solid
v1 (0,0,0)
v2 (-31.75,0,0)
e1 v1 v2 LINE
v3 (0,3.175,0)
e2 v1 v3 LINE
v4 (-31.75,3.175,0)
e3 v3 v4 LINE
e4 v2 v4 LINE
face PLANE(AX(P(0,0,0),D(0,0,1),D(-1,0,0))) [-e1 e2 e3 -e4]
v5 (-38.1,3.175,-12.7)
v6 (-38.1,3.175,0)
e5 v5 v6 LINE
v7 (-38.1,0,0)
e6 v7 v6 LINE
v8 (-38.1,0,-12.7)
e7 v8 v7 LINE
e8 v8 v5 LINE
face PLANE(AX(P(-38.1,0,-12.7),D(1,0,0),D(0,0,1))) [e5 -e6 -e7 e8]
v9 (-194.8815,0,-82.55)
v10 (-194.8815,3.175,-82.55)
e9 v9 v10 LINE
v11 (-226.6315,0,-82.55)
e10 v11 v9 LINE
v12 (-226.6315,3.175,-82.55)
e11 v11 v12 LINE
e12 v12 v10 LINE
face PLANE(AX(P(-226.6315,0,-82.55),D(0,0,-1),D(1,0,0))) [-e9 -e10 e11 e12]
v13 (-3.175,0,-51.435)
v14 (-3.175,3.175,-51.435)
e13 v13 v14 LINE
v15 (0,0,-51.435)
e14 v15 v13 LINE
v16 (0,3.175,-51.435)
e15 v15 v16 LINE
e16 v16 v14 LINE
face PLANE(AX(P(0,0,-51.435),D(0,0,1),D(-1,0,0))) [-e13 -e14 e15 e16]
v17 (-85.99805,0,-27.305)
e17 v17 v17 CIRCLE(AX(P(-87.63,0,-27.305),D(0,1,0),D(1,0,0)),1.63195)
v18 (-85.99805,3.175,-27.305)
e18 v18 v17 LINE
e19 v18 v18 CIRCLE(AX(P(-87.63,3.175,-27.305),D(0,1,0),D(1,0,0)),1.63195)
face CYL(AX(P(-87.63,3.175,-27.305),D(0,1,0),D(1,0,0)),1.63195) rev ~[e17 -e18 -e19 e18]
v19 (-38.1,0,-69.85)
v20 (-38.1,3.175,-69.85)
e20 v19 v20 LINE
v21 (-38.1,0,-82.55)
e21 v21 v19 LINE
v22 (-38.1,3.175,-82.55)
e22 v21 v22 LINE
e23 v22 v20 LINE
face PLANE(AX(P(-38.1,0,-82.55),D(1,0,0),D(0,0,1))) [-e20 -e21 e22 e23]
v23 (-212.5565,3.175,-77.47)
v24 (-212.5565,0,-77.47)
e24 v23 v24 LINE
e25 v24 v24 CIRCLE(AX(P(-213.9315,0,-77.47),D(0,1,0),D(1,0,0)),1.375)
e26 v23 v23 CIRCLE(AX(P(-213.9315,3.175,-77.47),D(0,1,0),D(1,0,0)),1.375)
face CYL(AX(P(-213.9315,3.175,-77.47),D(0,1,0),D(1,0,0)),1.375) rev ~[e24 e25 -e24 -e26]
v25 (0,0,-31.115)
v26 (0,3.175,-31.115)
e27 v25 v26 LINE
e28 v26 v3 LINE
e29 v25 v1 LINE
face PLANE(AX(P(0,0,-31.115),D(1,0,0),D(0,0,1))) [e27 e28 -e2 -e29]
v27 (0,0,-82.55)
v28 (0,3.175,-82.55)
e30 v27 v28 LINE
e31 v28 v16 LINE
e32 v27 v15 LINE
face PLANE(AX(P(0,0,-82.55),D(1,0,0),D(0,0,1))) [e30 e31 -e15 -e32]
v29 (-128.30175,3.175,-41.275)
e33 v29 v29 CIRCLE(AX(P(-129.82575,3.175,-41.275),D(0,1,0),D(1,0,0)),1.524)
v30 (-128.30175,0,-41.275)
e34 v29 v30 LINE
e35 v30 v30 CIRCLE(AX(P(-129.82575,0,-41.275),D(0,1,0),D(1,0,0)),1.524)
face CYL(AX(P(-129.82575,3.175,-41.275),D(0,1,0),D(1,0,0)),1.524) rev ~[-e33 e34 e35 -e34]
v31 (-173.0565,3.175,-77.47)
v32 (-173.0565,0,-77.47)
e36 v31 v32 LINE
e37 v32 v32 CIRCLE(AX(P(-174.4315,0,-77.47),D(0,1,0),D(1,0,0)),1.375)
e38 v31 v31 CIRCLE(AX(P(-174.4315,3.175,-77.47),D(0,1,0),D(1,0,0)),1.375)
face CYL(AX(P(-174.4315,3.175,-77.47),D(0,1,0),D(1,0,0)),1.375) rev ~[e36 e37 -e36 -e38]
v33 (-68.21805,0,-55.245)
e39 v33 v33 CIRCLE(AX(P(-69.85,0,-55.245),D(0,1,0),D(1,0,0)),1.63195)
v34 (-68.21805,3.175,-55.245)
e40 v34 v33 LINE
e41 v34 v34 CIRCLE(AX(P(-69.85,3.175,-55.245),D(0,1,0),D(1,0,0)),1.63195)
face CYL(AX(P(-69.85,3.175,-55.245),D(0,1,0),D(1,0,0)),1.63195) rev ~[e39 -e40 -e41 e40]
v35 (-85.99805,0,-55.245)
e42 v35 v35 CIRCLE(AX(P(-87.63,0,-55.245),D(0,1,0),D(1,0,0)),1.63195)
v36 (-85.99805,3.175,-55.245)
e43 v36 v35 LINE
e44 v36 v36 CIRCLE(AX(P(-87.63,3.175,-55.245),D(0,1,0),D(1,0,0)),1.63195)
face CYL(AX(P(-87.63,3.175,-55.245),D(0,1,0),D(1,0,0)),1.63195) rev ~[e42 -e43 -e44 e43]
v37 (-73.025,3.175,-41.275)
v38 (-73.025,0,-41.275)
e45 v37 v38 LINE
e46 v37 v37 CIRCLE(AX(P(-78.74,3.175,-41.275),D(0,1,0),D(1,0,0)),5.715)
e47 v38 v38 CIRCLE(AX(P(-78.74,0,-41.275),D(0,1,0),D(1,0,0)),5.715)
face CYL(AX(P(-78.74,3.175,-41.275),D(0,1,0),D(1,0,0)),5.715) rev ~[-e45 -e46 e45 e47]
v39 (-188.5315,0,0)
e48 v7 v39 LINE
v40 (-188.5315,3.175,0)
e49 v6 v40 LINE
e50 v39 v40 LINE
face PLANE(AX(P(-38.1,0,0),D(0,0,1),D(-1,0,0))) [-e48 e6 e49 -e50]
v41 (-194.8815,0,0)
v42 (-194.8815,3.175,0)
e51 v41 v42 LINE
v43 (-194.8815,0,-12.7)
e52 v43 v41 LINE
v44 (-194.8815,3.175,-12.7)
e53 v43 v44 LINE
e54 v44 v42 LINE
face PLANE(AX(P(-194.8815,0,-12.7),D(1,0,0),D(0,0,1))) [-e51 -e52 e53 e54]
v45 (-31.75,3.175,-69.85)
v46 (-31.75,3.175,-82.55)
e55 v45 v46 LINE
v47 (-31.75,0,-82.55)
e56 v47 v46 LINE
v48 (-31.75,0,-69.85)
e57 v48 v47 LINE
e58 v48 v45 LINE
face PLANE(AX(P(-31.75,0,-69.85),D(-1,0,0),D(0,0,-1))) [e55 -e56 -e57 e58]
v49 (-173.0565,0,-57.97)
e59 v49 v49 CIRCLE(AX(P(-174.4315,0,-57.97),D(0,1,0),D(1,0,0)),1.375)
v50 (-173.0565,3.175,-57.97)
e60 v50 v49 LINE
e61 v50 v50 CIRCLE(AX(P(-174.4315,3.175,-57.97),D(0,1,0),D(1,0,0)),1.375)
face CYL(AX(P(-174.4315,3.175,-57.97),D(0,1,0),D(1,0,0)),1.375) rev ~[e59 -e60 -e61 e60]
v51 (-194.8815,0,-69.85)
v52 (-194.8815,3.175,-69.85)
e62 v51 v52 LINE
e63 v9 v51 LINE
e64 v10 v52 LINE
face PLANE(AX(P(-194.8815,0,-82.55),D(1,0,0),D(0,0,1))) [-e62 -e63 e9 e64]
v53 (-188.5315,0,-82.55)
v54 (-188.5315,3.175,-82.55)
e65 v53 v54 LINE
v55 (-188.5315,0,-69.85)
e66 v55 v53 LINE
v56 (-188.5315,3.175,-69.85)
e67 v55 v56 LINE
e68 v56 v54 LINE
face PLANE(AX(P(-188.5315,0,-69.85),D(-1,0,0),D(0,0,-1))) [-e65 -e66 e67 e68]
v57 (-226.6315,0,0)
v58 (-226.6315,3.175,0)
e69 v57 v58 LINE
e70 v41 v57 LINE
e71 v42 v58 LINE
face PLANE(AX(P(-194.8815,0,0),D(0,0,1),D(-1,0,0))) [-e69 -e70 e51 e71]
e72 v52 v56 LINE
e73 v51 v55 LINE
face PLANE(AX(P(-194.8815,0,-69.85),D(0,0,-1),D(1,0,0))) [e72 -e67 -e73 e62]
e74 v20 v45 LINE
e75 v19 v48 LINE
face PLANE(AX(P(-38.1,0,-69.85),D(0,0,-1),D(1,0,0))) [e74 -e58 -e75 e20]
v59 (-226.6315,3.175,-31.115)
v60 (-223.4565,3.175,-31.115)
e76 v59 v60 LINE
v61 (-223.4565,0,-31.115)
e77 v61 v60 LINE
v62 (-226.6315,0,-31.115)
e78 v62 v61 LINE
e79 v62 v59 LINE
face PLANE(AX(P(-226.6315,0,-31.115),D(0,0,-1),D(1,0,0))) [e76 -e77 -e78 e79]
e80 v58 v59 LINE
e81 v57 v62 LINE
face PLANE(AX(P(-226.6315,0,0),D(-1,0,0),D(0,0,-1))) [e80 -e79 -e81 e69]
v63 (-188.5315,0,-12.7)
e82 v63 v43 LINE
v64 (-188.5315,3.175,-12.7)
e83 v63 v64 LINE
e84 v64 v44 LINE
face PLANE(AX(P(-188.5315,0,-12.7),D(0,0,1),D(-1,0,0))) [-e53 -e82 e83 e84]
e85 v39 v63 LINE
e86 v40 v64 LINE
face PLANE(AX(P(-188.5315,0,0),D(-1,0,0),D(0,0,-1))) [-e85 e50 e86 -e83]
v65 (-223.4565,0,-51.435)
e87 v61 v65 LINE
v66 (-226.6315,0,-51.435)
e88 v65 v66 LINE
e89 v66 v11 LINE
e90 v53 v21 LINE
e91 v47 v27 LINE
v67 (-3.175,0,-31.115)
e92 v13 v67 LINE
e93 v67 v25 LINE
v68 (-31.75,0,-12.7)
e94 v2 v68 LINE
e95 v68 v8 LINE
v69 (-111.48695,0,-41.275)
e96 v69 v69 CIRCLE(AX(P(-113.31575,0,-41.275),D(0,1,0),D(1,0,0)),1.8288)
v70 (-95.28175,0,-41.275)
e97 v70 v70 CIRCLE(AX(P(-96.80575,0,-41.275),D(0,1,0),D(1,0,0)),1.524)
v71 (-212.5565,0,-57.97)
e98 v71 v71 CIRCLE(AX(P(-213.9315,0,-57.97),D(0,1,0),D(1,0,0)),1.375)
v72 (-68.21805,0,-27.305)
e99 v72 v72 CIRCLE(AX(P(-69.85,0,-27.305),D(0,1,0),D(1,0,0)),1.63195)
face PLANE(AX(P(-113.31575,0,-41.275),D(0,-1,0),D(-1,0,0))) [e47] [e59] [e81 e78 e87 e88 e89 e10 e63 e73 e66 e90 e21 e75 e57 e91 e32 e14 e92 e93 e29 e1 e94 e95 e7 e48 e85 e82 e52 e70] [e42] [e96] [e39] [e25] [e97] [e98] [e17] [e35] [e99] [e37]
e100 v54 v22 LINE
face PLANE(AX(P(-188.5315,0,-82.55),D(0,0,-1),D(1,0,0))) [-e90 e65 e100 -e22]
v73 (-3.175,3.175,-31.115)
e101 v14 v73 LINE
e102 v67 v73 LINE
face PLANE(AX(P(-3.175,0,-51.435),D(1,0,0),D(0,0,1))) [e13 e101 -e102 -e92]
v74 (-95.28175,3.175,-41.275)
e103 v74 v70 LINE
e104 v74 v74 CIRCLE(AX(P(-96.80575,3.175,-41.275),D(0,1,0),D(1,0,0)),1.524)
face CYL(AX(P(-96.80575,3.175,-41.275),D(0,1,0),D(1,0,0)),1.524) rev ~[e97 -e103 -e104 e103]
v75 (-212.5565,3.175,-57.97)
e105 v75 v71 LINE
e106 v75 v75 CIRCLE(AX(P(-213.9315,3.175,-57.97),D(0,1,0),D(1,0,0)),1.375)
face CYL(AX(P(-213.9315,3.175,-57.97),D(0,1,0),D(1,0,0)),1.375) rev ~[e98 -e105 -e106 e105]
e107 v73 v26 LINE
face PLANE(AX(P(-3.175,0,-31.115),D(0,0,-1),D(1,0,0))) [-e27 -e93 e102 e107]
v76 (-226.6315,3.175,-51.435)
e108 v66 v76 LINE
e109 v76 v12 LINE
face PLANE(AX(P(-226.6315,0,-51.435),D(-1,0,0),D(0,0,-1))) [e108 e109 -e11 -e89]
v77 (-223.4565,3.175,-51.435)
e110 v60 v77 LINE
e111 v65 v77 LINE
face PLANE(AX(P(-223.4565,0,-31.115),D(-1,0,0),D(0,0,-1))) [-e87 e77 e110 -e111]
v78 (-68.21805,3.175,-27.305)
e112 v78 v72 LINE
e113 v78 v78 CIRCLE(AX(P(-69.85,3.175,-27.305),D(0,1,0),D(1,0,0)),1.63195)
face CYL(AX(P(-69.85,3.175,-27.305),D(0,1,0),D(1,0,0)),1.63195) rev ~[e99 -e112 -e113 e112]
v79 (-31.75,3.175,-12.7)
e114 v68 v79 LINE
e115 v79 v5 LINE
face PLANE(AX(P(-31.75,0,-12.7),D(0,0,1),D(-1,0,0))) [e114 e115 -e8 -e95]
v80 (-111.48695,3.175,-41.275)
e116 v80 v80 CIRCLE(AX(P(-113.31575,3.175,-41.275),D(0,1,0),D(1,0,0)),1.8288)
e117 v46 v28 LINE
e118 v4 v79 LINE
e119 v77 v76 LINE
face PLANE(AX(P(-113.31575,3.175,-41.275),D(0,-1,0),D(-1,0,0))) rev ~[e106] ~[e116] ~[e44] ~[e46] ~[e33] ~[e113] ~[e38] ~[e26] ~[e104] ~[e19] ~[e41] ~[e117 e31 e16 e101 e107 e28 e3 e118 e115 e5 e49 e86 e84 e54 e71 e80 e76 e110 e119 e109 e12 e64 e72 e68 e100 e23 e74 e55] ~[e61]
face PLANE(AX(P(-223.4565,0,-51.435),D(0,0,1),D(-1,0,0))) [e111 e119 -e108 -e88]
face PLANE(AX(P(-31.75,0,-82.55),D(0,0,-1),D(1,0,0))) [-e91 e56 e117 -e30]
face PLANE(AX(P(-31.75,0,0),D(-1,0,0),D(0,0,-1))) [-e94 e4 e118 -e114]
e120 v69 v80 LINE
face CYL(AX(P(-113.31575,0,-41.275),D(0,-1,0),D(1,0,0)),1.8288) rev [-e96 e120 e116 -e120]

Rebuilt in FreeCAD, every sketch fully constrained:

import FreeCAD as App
import Part
import Sketcher

V = App.Vector
Q = App.Units.Quantity


def add_polygon(sketch, points):
    """Adds a closed chain of lines whose ends are joined by coincident constraints."""
    first, n = sketch.GeometryCount, len(points)
    for a, b in zip(points, points[1:] + points[:1]):
        sketch.addGeometry(Part.LineSegment(App.Vector(*a, 0), App.Vector(*b, 0)), False)
    for i in range(n):
        sketch.addConstraint(Sketcher.Constraint("Coincident", first + i, 2, first + (i + 1) % n, 1))

doc = App.newDocument("Part")
body = doc.addObject("PartDesign::Body", "Body")

sketch1 = body.newObject("Sketcher::SketchObject", "Sketch")
sketch1.AttachmentSupport = (doc.getObject("XZ_Plane"), [""])
sketch1.MapMode = "FlatFace"
add_polygon(sketch1, [(-194.9, -82.5), (-226.6, -82.5), (-226.6, -51.4), (-223.5, -51.4), (-223.5, -31.1), (-226.6, -31.1), (-226.6, 0), (-194.9, 0), (-194.9, -12.7), (-188.5, -12.7), (-188.5, 0), (-38.1, 0), (-38.1, -12.7), (-31.8, -12.7), (-31.8, 0), (0, 0), (0, -31.1), (-3.2, -31.1), (-3.2, -51.4), (0, -51.4), (0, -82.5), (-31.8, -82.5), (-31.8, -69.8), (-38.1, -69.8), (-38.1, -82.5), (-188.5, -82.5), (-188.5, -69.8), (-194.9, -69.8)])
sketch1.addGeometry(Part.Circle(V(-113.3, -41.3, 0), V(0, 0, 1), 1.8), False)
sketch1.addConstraint(Sketcher.Constraint("Horizontal", 0))
sketch1.addConstraint(Sketcher.Constraint("Vertical", 1))
sketch1.addConstraint(Sketcher.Constraint("Horizontal", 2))
sketch1.addConstraint(Sketcher.Constraint("Vertical", 3))
sketch1.addConstraint(Sketcher.Constraint("Horizontal", 4))
sketch1.addConstraint(Sketcher.Constraint("Vertical", 5))
sketch1.addConstraint(Sketcher.Constraint("Horizontal", 6))
sketch1.addConstraint(Sketcher.Constraint("Vertical", 7))
sketch1.addConstraint(Sketcher.Constraint("Horizontal", 8))
sketch1.addConstraint(Sketcher.Constraint("Vertical", 9))
sketch1.addConstraint(Sketcher.Constraint("Horizontal", 10))
sketch1.addConstraint(Sketcher.Constraint("Vertical", 11))
sketch1.addConstraint(Sketcher.Constraint("Horizontal", 12))
sketch1.addConstraint(Sketcher.Constraint("Vertical", 13))
sketch1.addConstraint(Sketcher.Constraint("Horizontal", 14))
sketch1.addConstraint(Sketcher.Constraint("Vertical", 15))
sketch1.addConstraint(Sketcher.Constraint("Horizontal", 16))
sketch1.addConstraint(Sketcher.Constraint("Vertical", 17))
sketch1.addConstraint(Sketcher.Constraint("Horizontal", 18))
sketch1.addConstraint(Sketcher.Constraint("Vertical", 19))
sketch1.addConstraint(Sketcher.Constraint("Horizontal", 20))
sketch1.addConstraint(Sketcher.Constraint("Vertical", 21))
sketch1.addConstraint(Sketcher.Constraint("Horizontal", 22))
sketch1.addConstraint(Sketcher.Constraint("Vertical", 23))
sketch1.addConstraint(Sketcher.Constraint("Horizontal", 24))
sketch1.addConstraint(Sketcher.Constraint("Vertical", 25))
sketch1.addConstraint(Sketcher.Constraint("Horizontal", 26))
sketch1.addConstraint(Sketcher.Constraint("Vertical", 27))
sketch1.addConstraint(Sketcher.Constraint("Coincident", 14, 2, -1, 1))
sketch1.addConstraint(Sketcher.Constraint("PointOnObject", 5, 2, -1))
sketch1.addConstraint(Sketcher.Constraint("PointOnObject", 9, 2, -1))
sketch1.addConstraint(Sketcher.Constraint("PointOnObject", 18, 2, -2))
sketch1.addConstraint(Sketcher.Constraint("Horizontal", 8, 2, 11, 2))
sketch1.addConstraint(Sketcher.Constraint("Horizontal", 4, 2, 15, 2))
sketch1.addConstraint(Sketcher.Constraint("Horizontal", 2, 2, 17, 2))
sketch1.addConstraint(Sketcher.Constraint("Horizontal", 0, 2, 19, 2))
sketch1.addConstraint(Sketcher.Constraint("Horizontal", 20, 2, 23, 2))
sketch1.addConstraint(Sketcher.Constraint("Horizontal", 22, 2, 25, 2))
sketch1.addConstraint(Sketcher.Constraint("Vertical", 1, 2, 4, 2))
sketch1.addConstraint(Sketcher.Constraint("Vertical", 13, 2, 20, 2))
sketch1.addConstraint(Sketcher.Constraint("Vertical", 11, 2, 22, 2))
sketch1.addConstraint(Sketcher.Constraint("Vertical", 9, 2, 24, 2))
sketch1.addConstraint(Sketcher.Constraint("Vertical", 7, 2, 26, 2))
sketch1.addConstraint(Sketcher.Constraint("Equal", 8, 12))
sketch1.addConstraint(Sketcher.Constraint("Equal", 6, 14))
sketch1.addConstraint(Sketcher.Constraint("Equal", 4, 16))
sketch1.addConstraint(Sketcher.Constraint("Equal", 1, 5))
sketch1.addConstraint(Sketcher.Constraint("Equal", 13, 21))
sketch1.addConstraint(Sketcher.Constraint("Diameter", 28, Q("0.144 in")))
sketch1.addConstraint(Sketcher.Constraint("DistanceY", 3, 1, 3, 2, Q("0.8 in")))
sketch1.addConstraint(Sketcher.Constraint("DistanceY", 7, 2, 7, 1, Q("0.5 in")))
sketch1.addConstraint(Sketcher.Constraint("DistanceX", 0, 2, 0, 1, Q("1.25 in")))
sketch1.addConstraint(Sketcher.Constraint("DistanceX", 8, 1, 8, 2, Q("0.25 in")))
sketch1.addConstraint(Sketcher.Constraint("DistanceY", 1, 2, 28, 3, Q("0.4 in")))
sketch1.addConstraint(Sketcher.Constraint("DistanceX", 2, 1, 2, 2, Q("0.125 in")))
sketch1.addConstraint(Sketcher.Constraint("DistanceY", 1, 1, 1, 2, Q("1.225 in")))
sketch1.addConstraint(Sketcher.Constraint("DistanceX", 10, 1, 10, 2, Q("5.9225 in")))
sketch1.addConstraint(Sketcher.Constraint("DistanceX", 28, 3, -1, 1, 113.31575))
pad1 = body.newObject("PartDesign::Pad", "Pad")
pad1.Profile = sketch1
pad1.Length = Q("0.125 in")
pad1.Reversed = True

sketch2 = body.newObject("Sketcher::SketchObject", "Sketch001")
sketch2.AttachmentSupport = (doc.getObject("XZ_Plane"), [""])
sketch2.MapMode = "FlatFace"
sketch2.AttachmentOffset = App.Placement(V(0, 0, -0.125 * 25.4), App.Rotation())
sketch2.addGeometry(Part.Circle(V(-87.6, -27.3, 0), V(0, 0, 1), 1.6), False)
sketch2.addGeometry(Part.Circle(V(-69.8, -27.3, 0), V(0, 0, 1), 1.6), False)
sketch2.addGeometry(Part.Circle(V(-69.8, -55.2, 0), V(0, 0, 1), 1.6), False)
sketch2.addGeometry(Part.Circle(V(-87.6, -55.2, 0), V(0, 0, 1), 1.6), False)
sketch2.addGeometry(Part.Circle(V(-78.7, -41.3, 0), V(0, 0, 1), 5.7), False)
sketch2.addGeometry(Part.Circle(V(-129.8, -41.3, 0), V(0, 0, 1), 1.5), False)
sketch2.addGeometry(Part.Circle(V(-96.8, -41.3, 0), V(0, 0, 1), 1.5), False)
sketch2.addConstraint(Sketcher.Constraint("Equal", 0, 1))
sketch2.addConstraint(Sketcher.Constraint("Equal", 1, 2))
sketch2.addConstraint(Sketcher.Constraint("Equal", 2, 3))
sketch2.addConstraint(Sketcher.Constraint("Equal", 5, 6))
sketch2.addConstraint(Sketcher.Constraint("Horizontal", 0, 3, 1, 3))
sketch2.addConstraint(Sketcher.Constraint("Horizontal", 2, 3, 3, 3))
sketch2.addConstraint(Sketcher.Constraint("Horizontal", 4, 3, 5, 3))
sketch2.addConstraint(Sketcher.Constraint("Horizontal", 5, 3, 6, 3))
sketch2.addConstraint(Sketcher.Constraint("Vertical", 1, 3, 2, 3))
sketch2.addConstraint(Sketcher.Constraint("Vertical", 0, 3, 3, 3))
sketch2.addConstraint(Sketcher.Constraint("Diameter", 4, Q("0.45 in")))
sketch2.addConstraint(Sketcher.Constraint("Diameter", 5, Q("0.12 in")))
sketch2.addConstraint(Sketcher.Constraint("Diameter", 0, Q("0.1285 in")))
sketch2.addConstraint(Sketcher.Constraint("DistanceX", 4, 3, -1, 1, Q("3.1 in")))
sketch2.addConstraint(Sketcher.Constraint("DistanceX", 0, 3, 1, 3, Q("0.7 in")))
sketch2.addConstraint(Sketcher.Constraint("DistanceY", 2, 3, 1, 3, Q("1.1 in")))
sketch2.addConstraint(Sketcher.Constraint("DistanceX", 0, 3, -1, 1, Q("3.45 in")))
sketch2.addConstraint(Sketcher.Constraint("DistanceY", 4, 3, 0, 3, Q("0.55 in")))
sketch2.addConstraint(Sketcher.Constraint("DistanceY", 0, 3, -1, 1, Q("1.075 in")))
sketch2.addConstraint(Sketcher.Constraint("DistanceX", 5, 3, -1, 1, 129.82575))
sketch2.addConstraint(Sketcher.Constraint("DistanceX", 6, 3, -1, 1, 96.80575))
pocket1 = body.newObject("PartDesign::Pocket", "Pocket")
pocket1.Profile = sketch2
pocket1.Type = "ThroughAll"
pocket1.Reversed = True

sketch3 = body.newObject("Sketcher::SketchObject", "Sketch002")
sketch3.AttachmentSupport = (doc.getObject("XZ_Plane"), [""])
sketch3.MapMode = "FlatFace"
sketch3.AttachmentOffset = App.Placement(V(0, 0, -0.125 * 25.4), App.Rotation())
sketch3.addGeometry(Part.Circle(V(-174.4, -58, 0), V(0, 0, 1), 1.4), False)
sketch3.addGeometry(Part.Circle(V(-213.9, -58, 0), V(0, 0, 1), 1.4), False)
sketch3.addGeometry(Part.Circle(V(-213.9, -77.5, 0), V(0, 0, 1), 1.4), False)
sketch3.addGeometry(Part.Circle(V(-174.4, -77.5, 0), V(0, 0, 1), 1.4), False)
sketch3.addConstraint(Sketcher.Constraint("Equal", 0, 1))
sketch3.addConstraint(Sketcher.Constraint("Equal", 1, 2))
sketch3.addConstraint(Sketcher.Constraint("Equal", 2, 3))
sketch3.addConstraint(Sketcher.Constraint("Horizontal", 0, 3, 1, 3))
sketch3.addConstraint(Sketcher.Constraint("Horizontal", 2, 3, 3, 3))
sketch3.addConstraint(Sketcher.Constraint("Vertical", 1, 3, 2, 3))
sketch3.addConstraint(Sketcher.Constraint("Vertical", 0, 3, 3, 3))
sketch3.addConstraint(Sketcher.Constraint("Diameter", 0, 2.75))
sketch3.addConstraint(Sketcher.Constraint("DistanceY", 2, 3, -1, 1, Q("3.05 in")))
sketch3.addConstraint(Sketcher.Constraint("DistanceX", 1, 3, -1, 1, Q("8.4225 in")))
sketch3.addConstraint(Sketcher.Constraint("DistanceX", 0, 3, -1, 1, 174.4315))
sketch3.addConstraint(Sketcher.Constraint("DistanceY", 0, 3, -1, 1, 57.97))
pocket2 = body.newObject("PartDesign::Pocket", "Pocket001")
pocket2.Profile = sketch3
pocket2.Type = "ThroughAll"
pocket2.Reversed = True

doc.recompute()
